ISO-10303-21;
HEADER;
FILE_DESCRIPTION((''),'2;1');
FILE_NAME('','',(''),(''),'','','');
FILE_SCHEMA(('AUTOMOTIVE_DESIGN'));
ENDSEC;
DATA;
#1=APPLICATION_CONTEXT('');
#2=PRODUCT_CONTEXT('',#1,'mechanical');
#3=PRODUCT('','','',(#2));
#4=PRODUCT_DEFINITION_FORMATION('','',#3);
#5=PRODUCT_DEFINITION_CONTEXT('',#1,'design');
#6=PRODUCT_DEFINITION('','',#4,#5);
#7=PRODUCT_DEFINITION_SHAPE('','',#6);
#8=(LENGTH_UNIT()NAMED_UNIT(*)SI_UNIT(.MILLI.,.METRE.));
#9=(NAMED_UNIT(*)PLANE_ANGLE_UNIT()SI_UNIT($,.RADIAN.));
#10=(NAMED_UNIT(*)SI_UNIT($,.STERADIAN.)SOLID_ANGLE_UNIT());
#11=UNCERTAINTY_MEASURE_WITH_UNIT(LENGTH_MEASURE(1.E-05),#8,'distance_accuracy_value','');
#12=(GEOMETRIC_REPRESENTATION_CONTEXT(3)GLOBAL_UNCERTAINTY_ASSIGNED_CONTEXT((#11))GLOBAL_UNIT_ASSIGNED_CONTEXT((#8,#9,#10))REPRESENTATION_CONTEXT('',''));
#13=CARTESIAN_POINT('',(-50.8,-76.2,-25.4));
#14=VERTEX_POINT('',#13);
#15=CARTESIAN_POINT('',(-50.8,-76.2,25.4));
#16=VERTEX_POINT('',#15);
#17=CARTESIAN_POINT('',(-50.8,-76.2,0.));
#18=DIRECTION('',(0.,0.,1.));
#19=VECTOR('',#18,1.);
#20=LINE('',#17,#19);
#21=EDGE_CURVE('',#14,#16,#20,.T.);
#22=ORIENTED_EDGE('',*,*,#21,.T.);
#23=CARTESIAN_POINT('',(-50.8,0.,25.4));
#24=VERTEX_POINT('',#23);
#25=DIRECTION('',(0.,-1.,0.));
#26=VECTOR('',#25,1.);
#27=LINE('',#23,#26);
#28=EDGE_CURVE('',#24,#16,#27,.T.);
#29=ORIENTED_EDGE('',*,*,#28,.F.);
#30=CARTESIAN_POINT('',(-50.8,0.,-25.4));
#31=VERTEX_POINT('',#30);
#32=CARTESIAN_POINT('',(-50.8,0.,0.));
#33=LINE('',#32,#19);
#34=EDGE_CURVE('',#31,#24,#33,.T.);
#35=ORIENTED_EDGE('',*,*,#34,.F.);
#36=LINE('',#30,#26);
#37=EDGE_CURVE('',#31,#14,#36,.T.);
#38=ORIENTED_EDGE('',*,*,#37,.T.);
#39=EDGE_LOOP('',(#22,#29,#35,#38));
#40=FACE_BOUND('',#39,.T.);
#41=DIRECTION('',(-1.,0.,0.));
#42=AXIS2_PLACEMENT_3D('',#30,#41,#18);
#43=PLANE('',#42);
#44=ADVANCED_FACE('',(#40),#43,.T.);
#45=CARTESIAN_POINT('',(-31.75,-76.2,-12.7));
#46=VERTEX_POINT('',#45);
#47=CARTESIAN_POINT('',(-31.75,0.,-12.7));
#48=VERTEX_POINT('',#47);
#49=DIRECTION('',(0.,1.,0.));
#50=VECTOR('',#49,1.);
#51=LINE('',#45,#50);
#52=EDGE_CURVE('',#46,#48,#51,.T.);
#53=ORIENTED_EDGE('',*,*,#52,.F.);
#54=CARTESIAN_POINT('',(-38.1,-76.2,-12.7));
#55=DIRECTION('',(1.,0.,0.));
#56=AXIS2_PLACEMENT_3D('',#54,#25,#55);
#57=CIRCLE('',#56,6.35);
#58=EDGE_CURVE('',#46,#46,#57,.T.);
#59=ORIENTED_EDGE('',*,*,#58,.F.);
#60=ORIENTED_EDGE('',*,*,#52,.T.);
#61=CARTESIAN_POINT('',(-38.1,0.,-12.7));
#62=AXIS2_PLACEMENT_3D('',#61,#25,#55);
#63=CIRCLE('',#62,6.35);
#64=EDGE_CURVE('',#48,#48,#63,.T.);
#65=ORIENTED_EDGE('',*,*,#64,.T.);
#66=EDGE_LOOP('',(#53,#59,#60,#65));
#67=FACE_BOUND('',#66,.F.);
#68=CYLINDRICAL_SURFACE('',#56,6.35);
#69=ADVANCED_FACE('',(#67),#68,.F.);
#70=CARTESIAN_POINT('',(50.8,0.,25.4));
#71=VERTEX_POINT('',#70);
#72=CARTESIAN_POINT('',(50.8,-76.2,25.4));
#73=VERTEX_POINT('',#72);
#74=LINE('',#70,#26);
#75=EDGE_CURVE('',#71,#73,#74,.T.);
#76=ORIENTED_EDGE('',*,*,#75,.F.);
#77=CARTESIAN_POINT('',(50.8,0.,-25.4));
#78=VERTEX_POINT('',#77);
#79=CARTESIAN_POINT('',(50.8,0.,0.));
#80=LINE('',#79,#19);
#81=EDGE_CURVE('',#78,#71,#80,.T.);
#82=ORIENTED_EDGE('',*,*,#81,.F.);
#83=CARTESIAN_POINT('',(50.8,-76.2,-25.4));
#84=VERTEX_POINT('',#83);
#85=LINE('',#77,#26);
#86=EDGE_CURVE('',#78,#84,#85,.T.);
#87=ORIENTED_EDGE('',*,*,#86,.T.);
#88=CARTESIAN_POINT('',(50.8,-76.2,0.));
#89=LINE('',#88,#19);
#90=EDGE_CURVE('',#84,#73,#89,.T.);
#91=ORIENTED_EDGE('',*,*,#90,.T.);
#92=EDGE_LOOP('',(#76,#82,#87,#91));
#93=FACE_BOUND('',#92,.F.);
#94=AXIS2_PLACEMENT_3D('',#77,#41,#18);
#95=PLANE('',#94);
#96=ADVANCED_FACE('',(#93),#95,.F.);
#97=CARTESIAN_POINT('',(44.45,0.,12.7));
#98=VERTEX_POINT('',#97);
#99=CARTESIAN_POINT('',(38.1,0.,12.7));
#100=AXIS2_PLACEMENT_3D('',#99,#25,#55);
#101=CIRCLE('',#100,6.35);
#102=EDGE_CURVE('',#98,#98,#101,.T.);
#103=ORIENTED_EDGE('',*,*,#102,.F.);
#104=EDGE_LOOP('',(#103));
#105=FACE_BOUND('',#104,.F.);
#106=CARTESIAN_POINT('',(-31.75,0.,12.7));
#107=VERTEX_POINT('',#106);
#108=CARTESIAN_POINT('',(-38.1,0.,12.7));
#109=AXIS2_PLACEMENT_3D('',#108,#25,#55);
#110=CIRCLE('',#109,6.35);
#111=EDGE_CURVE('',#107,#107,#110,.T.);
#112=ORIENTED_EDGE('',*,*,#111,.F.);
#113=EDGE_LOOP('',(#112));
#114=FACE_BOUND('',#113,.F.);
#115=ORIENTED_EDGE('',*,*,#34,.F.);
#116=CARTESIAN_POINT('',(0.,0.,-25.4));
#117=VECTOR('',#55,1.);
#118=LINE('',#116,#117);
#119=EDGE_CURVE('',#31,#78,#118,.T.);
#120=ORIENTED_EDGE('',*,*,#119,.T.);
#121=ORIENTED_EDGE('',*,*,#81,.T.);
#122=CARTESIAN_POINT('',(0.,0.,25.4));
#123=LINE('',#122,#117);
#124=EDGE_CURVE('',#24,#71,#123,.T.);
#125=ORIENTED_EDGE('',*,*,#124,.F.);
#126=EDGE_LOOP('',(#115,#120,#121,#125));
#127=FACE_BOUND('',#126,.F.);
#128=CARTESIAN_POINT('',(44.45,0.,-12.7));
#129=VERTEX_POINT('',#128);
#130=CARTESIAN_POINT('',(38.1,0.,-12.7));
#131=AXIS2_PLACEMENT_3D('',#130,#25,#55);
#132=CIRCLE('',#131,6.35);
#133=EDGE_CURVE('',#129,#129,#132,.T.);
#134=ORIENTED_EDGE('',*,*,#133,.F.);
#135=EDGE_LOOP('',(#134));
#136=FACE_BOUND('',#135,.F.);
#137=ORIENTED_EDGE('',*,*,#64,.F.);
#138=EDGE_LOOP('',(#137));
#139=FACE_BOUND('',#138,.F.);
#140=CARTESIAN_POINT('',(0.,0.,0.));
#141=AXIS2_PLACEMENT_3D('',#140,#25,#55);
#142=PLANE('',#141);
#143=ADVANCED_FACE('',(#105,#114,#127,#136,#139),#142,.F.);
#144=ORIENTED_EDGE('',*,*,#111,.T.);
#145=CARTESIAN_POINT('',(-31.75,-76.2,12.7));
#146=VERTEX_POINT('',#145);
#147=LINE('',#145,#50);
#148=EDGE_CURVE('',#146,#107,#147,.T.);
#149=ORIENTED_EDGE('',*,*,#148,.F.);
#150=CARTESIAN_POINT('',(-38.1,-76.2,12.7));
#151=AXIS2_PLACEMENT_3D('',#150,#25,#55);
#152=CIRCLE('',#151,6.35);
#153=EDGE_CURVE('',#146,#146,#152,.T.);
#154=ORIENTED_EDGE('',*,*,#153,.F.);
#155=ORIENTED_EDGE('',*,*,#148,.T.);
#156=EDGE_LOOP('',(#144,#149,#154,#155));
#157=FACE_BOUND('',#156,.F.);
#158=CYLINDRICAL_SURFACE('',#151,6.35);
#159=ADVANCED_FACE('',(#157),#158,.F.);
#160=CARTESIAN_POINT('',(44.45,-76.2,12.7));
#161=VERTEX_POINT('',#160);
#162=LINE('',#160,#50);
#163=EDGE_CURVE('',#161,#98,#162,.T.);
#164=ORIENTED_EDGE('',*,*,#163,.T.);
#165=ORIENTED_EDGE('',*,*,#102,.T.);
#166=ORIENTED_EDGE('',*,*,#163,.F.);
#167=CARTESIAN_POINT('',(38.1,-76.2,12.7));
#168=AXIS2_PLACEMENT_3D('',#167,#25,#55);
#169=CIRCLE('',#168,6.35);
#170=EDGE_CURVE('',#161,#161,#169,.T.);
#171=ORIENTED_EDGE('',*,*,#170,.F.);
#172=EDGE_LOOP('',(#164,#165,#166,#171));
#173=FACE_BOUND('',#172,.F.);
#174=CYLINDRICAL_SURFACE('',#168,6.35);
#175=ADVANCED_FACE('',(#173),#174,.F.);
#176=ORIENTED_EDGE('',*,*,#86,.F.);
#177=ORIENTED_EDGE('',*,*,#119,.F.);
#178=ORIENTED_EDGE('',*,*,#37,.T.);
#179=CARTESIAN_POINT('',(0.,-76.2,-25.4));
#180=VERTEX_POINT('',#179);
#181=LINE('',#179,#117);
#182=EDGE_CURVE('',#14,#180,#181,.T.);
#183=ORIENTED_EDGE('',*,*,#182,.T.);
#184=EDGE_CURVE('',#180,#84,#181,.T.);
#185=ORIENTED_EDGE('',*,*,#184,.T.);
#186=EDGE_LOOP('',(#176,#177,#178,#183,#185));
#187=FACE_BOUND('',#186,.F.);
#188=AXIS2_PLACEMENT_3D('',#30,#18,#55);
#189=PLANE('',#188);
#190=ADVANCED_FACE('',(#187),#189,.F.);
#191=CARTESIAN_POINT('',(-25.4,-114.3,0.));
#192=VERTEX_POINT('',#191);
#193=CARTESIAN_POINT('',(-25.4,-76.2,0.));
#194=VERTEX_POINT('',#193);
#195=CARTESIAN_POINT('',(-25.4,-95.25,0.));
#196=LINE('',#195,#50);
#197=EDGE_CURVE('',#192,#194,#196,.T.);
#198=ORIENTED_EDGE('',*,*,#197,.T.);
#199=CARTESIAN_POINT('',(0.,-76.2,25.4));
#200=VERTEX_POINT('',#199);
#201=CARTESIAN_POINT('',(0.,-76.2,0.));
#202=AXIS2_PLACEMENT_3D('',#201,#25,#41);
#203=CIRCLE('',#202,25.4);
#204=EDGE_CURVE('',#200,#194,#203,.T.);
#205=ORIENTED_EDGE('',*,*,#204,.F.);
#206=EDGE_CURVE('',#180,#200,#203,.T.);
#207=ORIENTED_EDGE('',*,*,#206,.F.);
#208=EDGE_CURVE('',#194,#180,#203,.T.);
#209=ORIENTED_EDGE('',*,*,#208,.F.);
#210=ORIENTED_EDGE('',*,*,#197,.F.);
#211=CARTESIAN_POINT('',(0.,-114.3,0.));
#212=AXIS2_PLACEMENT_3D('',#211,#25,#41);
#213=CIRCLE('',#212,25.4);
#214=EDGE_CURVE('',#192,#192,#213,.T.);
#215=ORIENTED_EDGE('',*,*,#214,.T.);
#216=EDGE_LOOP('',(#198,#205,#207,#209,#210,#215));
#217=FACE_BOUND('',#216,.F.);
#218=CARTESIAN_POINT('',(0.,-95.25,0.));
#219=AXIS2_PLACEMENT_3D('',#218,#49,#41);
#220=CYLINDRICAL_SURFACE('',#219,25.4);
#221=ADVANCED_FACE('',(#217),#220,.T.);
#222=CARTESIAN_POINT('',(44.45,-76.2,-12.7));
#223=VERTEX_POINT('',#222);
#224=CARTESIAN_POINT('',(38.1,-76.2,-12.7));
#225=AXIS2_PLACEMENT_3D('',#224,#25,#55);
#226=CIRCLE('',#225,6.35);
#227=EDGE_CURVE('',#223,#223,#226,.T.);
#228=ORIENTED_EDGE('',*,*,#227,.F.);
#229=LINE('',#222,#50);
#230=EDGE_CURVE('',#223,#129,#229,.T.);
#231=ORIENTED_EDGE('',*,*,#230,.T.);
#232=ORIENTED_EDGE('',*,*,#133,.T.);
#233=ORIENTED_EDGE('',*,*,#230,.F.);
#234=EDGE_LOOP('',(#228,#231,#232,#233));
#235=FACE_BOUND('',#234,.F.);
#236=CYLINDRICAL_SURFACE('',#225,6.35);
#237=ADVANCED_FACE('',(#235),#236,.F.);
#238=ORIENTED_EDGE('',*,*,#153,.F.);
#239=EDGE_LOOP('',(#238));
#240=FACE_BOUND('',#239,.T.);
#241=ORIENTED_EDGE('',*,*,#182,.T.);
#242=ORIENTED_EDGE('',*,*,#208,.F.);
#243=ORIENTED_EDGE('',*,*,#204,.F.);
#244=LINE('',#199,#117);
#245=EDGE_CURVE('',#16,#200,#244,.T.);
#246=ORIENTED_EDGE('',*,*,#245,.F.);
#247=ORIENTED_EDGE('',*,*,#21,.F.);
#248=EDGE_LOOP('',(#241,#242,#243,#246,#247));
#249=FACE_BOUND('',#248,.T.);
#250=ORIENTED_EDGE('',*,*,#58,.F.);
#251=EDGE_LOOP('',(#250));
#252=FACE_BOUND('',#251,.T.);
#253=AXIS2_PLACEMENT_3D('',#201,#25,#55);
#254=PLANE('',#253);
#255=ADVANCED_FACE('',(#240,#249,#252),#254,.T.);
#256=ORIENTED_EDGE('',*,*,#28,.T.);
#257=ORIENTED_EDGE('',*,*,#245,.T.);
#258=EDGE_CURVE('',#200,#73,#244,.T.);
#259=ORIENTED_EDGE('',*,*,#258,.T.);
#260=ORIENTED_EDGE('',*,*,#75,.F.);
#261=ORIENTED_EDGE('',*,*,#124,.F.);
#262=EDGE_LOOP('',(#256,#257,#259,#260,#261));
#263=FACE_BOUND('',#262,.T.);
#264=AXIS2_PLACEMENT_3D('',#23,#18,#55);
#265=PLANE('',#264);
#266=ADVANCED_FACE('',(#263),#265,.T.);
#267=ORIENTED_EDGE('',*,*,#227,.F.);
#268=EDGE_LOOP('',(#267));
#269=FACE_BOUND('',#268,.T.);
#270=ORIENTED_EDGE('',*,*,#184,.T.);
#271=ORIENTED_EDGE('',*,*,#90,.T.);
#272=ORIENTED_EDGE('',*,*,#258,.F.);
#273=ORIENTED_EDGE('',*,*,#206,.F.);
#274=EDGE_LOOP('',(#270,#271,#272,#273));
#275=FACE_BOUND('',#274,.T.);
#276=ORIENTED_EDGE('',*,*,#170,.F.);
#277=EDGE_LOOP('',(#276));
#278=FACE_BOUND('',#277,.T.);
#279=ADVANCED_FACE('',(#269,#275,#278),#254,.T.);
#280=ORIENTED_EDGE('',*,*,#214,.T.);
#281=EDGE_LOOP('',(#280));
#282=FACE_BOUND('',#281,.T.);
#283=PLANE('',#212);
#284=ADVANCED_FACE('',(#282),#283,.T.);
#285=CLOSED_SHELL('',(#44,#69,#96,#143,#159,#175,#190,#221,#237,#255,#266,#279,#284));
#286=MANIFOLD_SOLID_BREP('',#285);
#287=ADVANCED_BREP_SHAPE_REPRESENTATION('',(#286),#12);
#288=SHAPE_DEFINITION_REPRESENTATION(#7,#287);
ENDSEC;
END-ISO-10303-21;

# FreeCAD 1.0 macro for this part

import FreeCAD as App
import Part
import Sketcher
Q = App.Units.Quantity


def add_polygon(sketch, points):
    """Adds a closed chain of lines whose ends are joined by coincident constraints."""
    first, n = sketch.GeometryCount, len(points)
    for a, b in zip(points, points[1:] + points[:1]):
        sketch.addGeometry(Part.LineSegment(App.Vector(*a, 0), App.Vector(*b, 0)), False)
    for i in range(n):
        sketch.addConstraint(Sketcher.Constraint("Coincident", first + i, 2, first + (i + 1) % n, 1))

doc = App.newDocument("Part")
body = doc.addObject("PartDesign::Body", "Body")

sketch1 = body.newObject("Sketcher::SketchObject", "Sketch")
sketch1.AttachmentSupport = (doc.getObject("XZ_Plane"), [""])
sketch1.MapMode = "FlatFace"
add_polygon(sketch1, [(-51, 25), (-51, -25), (51, -25), (51, 25)])
sketch1.addConstraint([
    Sketcher.Constraint("Vertical", 0),
    Sketcher.Constraint("Horizontal", 1),
    Sketcher.Constraint("Vertical", 2),
    Sketcher.Constraint("Horizontal", 3),
    Sketcher.Constraint("Symmetric", 0, 2, 2, 2, -1, 1),
    Sketcher.Constraint("DistanceX", 1, 1, 1, 2, Q("4 in")),
    Sketcher.Constraint("DistanceY", 0, 2, 0, 1, Q("2 in")),
])
pad1 = body.newObject("PartDesign::Pad", "Pad")
pad1.Profile = sketch1
pad1.Length = Q("3 in")

sketch2 = body.newObject("Sketcher::SketchObject", "Sketch001")
sketch2.AttachmentSupport = (doc.getObject("XZ_Plane"), [""])
sketch2.MapMode = "FlatFace"
sketch2.AttachmentOffset = App.Placement(App.Vector(0, 0, 3 * 25.4), App.Rotation())
sketch2.addGeometry([
    Part.Circle(App.Vector(-38, 13, 0), App.Vector(0, 0, 1), 6),
    Part.Circle(App.Vector(-38, -13, 0), App.Vector(0, 0, 1), 6),
    Part.Circle(App.Vector(38, 13, 0), App.Vector(0, 0, 1), 6),
    Part.Circle(App.Vector(38, -13, 0), App.Vector(0, 0, 1), 6),
], False)
sketch2.addConstraint([
    Sketcher.Constraint("Equal", 0, 1),
    Sketcher.Constraint("Equal", 1, 2),
    Sketcher.Constraint("Equal", 2, 3),
    Sketcher.Constraint("Symmetric", 1, 3, 2, 3, -1, 1),
    Sketcher.Constraint("Symmetric", 0, 3, 3, 3, -1, 1),
    Sketcher.Constraint("Symmetric", 0, 3, 2, 3, -2),
    Sketcher.Constraint("Diameter", 0, Q("0.5 in")),
    Sketcher.Constraint("DistanceY", 1, 3, 0, 3, Q("1 in")),
    Sketcher.Constraint("DistanceX", 0, 3, 2, 3, Q("3 in")),
])
pocket1 = body.newObject("PartDesign::Pocket", "Pocket")
pocket1.Profile = sketch2
pocket1.Type = "ThroughAll"

sketch3 = body.newObject("Sketcher::SketchObject", "Sketch002")
sketch3.AttachmentSupport = (doc.getObject("XY_Plane"), [""])
sketch3.MapMode = "FlatFace"
add_polygon(sketch3, [(-25, -76), (-25, -114), (0, -114), (0, -76)])
sketch3.addConstraint([
    Sketcher.Constraint("Vertical", 0),
    Sketcher.Constraint("Horizontal", 1),
    Sketcher.Constraint("Vertical", 2),
    Sketcher.Constraint("Horizontal", 3),
    Sketcher.Constraint("PointOnObject", 1, 2, -2),
    Sketcher.Constraint("DistanceX", 1, 1, 1, 2, Q("1 in")),
    Sketcher.Constraint("DistanceY", 0, 2, 0, 1, Q("1.5 in")),
    Sketcher.Constraint("DistanceY", 2, 2, -1, 1, Q("3 in")),
])
revolution = body.newObject("PartDesign::Revolution", "Revolution")
revolution.Profile = sketch3
revolution.ReferenceAxis = (sketch3, ["V_Axis"])
revolution.Angle = 360

doc.recompute()
